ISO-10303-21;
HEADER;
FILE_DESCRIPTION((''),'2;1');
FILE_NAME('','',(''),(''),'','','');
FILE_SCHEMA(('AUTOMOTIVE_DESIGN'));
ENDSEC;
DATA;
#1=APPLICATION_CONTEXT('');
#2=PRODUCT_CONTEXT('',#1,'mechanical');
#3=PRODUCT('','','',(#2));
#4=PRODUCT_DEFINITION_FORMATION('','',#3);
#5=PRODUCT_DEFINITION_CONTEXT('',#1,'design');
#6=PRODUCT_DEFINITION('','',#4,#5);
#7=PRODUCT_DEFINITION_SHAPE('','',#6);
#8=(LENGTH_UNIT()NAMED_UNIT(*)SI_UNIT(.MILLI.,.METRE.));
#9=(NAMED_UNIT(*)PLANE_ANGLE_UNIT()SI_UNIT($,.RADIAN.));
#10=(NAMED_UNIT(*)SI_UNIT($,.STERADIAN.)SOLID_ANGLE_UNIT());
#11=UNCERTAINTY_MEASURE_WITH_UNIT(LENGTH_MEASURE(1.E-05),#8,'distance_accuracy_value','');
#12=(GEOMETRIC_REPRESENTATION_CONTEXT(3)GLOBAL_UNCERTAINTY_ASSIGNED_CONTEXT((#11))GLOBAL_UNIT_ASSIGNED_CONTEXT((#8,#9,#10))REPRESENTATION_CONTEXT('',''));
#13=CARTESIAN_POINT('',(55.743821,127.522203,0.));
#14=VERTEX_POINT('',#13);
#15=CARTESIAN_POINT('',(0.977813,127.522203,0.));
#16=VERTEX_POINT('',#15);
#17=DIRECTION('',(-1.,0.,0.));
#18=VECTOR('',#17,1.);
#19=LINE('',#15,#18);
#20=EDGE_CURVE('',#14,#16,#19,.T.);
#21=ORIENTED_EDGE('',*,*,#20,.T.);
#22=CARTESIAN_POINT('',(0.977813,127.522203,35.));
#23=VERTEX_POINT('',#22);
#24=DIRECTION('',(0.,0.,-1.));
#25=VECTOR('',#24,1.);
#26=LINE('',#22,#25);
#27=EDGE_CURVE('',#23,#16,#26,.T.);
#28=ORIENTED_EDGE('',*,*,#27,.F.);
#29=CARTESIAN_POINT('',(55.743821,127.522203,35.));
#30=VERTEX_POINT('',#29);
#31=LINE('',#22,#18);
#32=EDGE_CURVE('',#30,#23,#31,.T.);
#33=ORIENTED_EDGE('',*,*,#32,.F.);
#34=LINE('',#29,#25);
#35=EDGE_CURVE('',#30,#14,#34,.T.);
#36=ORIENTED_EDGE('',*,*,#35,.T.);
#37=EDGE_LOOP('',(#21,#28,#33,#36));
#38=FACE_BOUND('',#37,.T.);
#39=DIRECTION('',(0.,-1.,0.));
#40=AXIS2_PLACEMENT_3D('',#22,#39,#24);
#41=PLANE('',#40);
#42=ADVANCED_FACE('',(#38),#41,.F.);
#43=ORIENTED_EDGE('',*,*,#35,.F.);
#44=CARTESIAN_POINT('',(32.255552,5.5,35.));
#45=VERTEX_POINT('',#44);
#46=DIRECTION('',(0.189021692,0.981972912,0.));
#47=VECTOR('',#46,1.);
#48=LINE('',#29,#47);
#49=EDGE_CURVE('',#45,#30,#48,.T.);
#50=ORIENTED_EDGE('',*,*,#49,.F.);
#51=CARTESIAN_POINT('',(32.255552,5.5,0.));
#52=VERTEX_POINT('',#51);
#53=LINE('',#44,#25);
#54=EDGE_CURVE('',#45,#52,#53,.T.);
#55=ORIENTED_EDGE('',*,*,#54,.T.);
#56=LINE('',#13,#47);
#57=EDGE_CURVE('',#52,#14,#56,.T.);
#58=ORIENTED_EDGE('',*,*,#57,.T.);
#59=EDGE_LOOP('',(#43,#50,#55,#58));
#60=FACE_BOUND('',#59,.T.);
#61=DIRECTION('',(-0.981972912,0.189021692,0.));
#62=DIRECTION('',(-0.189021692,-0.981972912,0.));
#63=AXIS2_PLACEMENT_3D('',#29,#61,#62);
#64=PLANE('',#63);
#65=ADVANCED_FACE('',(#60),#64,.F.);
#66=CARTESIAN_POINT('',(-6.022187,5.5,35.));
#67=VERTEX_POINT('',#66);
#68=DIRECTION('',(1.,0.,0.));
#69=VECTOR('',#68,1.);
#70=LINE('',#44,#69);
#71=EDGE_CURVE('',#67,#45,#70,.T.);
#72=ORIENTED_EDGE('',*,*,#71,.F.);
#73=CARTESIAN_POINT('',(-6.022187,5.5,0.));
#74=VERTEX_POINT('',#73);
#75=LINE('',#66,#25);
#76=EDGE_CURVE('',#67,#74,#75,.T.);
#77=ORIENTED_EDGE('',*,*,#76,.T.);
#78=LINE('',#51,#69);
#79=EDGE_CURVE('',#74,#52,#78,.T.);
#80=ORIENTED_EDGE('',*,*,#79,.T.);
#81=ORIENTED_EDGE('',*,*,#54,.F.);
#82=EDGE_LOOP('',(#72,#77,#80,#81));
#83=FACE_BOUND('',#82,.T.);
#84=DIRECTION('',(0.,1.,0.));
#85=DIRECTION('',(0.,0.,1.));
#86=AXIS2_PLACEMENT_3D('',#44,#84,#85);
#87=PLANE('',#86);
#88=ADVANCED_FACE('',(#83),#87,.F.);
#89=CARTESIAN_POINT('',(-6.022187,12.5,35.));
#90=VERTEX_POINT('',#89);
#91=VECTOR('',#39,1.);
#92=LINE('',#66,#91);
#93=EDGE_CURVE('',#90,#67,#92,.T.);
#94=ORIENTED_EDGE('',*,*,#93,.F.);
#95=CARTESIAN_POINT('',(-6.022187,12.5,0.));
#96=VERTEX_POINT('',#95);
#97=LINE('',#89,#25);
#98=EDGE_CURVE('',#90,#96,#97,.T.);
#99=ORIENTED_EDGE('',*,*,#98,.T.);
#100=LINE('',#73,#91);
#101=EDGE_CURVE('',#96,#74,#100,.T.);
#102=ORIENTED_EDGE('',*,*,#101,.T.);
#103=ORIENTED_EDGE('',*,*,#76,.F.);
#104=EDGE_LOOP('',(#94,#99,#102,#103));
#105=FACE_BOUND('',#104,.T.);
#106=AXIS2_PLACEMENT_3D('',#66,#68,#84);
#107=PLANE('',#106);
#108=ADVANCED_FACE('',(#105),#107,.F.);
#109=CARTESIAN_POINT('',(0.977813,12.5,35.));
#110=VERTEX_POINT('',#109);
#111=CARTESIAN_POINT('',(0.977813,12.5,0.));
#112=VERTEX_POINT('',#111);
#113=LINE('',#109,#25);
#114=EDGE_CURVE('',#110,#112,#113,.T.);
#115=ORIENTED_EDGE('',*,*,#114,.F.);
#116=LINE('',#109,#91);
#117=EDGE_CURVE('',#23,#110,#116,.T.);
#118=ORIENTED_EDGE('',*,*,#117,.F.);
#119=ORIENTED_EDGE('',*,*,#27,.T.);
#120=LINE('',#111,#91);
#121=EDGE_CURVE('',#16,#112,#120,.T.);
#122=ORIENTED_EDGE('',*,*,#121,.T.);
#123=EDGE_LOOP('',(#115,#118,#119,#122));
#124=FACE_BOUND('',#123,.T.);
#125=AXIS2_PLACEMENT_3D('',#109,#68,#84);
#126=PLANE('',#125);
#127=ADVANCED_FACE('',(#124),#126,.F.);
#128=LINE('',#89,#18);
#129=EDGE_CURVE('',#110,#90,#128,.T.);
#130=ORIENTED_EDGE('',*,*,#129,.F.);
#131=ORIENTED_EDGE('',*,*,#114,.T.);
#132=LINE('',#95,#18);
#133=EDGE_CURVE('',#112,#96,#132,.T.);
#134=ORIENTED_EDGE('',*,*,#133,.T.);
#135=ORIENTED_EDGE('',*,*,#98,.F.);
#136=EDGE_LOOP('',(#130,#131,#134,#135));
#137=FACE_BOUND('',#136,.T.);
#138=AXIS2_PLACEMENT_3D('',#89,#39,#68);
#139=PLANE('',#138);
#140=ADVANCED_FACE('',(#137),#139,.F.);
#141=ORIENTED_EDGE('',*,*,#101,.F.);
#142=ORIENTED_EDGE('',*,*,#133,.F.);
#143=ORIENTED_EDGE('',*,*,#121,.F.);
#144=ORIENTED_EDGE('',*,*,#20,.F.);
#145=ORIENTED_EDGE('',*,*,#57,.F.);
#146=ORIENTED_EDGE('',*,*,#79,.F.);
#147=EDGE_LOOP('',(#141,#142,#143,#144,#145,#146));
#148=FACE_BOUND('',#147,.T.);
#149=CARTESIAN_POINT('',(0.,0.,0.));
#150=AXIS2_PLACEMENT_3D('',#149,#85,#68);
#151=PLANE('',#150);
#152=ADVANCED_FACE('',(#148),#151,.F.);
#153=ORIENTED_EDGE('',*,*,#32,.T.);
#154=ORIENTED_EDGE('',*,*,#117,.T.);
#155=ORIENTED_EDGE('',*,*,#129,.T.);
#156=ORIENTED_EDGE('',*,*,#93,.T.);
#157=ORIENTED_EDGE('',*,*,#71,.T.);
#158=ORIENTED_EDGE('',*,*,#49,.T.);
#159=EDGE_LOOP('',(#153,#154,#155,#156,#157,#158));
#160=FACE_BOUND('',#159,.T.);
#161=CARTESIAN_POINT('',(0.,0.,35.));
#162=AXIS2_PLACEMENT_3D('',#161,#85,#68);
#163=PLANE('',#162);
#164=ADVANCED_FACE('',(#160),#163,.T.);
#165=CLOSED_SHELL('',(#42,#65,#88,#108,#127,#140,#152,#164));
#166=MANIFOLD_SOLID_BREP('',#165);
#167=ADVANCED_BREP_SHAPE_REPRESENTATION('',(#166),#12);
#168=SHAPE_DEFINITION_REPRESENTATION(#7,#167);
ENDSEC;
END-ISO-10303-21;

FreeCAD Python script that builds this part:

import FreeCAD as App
import Part
import Sketcher

V = App.Vector
Q = App.Units.Quantity

doc = App.newDocument("Part")
body = doc.addObject("PartDesign::Body", "Body")

sketch1 = body.newObject("Sketcher::SketchObject", "Sketch")
sketch1.AttachmentSupport = (doc.getObject("XY_Plane"), [""])
sketch1.MapMode = "FlatFace"
sketch1.addGeometry(Part.LineSegment(V(1, 12, 0), V(-6, 12, 0)), False)
sketch1.addGeometry(Part.LineSegment(V(-6, 12, 0), V(-6, 6, 0)), False)
sketch1.addGeometry(Part.LineSegment(V(-6, 6, 0), V(32, 6, 0)), False)
sketch1.addGeometry(Part.LineSegment(V(32, 6, 0), V(56, 128, 0)), False)
sketch1.addGeometry(Part.LineSegment(V(56, 128, 0), V(1, 128, 0)), False)
sketch1.addGeometry(Part.LineSegment(V(1, 128, 0), V(1, 12, 0)), False)
sketch1.addConstraint(Sketcher.Constraint("Coincident", 0, 2, 1, 1))
sketch1.addConstraint(Sketcher.Constraint("Coincident", 1, 2, 2, 1))
sketch1.addConstraint(Sketcher.Constraint("Coincident", 2, 2, 3, 1))
sketch1.addConstraint(Sketcher.Constraint("Coincident", 3, 2, 4, 1))
sketch1.addConstraint(Sketcher.Constraint("Coincident", 4, 2, 5, 1))
sketch1.addConstraint(Sketcher.Constraint("Coincident", 5, 2, 0, 1))
sketch1.addConstraint(Sketcher.Constraint("Horizontal", 0))
sketch1.addConstraint(Sketcher.Constraint("Vertical", 1))
sketch1.addConstraint(Sketcher.Constraint("Horizontal", 2))
sketch1.addConstraint(Sketcher.Constraint("Horizontal", 4))
sketch1.addConstraint(Sketcher.Constraint("Vertical", 5))
sketch1.addConstraint(Sketcher.Constraint("Equal", 0, 1))
sketch1.addConstraint(Sketcher.Constraint("DistanceX", 0, 2, 0, 1, Q("7 mm")))
sketch1.addConstraint(Sketcher.Constraint("DistanceY", -1, 1, 0, 2, Q("12.5 mm")))
sketch1.addConstraint(Sketcher.Constraint("DistanceX", 2, 1, 2, 2, Q("38.277739 mm")))
sketch1.addConstraint(Sketcher.Constraint("Distance", 3, Q("124.262291 mm")))
sketch1.addConstraint(Sketcher.Constraint("DistanceX", 4, 2, 4, 1, Q("54.766007 mm")))
sketch1.addConstraint(Sketcher.Constraint("DistanceX", -1, 1, 3, 2, Q("55.743821 mm")))
pad1 = body.newObject("PartDesign::Pad", "Pad")
pad1.Profile = sketch1
pad1.Length = 35

doc.recompute()
